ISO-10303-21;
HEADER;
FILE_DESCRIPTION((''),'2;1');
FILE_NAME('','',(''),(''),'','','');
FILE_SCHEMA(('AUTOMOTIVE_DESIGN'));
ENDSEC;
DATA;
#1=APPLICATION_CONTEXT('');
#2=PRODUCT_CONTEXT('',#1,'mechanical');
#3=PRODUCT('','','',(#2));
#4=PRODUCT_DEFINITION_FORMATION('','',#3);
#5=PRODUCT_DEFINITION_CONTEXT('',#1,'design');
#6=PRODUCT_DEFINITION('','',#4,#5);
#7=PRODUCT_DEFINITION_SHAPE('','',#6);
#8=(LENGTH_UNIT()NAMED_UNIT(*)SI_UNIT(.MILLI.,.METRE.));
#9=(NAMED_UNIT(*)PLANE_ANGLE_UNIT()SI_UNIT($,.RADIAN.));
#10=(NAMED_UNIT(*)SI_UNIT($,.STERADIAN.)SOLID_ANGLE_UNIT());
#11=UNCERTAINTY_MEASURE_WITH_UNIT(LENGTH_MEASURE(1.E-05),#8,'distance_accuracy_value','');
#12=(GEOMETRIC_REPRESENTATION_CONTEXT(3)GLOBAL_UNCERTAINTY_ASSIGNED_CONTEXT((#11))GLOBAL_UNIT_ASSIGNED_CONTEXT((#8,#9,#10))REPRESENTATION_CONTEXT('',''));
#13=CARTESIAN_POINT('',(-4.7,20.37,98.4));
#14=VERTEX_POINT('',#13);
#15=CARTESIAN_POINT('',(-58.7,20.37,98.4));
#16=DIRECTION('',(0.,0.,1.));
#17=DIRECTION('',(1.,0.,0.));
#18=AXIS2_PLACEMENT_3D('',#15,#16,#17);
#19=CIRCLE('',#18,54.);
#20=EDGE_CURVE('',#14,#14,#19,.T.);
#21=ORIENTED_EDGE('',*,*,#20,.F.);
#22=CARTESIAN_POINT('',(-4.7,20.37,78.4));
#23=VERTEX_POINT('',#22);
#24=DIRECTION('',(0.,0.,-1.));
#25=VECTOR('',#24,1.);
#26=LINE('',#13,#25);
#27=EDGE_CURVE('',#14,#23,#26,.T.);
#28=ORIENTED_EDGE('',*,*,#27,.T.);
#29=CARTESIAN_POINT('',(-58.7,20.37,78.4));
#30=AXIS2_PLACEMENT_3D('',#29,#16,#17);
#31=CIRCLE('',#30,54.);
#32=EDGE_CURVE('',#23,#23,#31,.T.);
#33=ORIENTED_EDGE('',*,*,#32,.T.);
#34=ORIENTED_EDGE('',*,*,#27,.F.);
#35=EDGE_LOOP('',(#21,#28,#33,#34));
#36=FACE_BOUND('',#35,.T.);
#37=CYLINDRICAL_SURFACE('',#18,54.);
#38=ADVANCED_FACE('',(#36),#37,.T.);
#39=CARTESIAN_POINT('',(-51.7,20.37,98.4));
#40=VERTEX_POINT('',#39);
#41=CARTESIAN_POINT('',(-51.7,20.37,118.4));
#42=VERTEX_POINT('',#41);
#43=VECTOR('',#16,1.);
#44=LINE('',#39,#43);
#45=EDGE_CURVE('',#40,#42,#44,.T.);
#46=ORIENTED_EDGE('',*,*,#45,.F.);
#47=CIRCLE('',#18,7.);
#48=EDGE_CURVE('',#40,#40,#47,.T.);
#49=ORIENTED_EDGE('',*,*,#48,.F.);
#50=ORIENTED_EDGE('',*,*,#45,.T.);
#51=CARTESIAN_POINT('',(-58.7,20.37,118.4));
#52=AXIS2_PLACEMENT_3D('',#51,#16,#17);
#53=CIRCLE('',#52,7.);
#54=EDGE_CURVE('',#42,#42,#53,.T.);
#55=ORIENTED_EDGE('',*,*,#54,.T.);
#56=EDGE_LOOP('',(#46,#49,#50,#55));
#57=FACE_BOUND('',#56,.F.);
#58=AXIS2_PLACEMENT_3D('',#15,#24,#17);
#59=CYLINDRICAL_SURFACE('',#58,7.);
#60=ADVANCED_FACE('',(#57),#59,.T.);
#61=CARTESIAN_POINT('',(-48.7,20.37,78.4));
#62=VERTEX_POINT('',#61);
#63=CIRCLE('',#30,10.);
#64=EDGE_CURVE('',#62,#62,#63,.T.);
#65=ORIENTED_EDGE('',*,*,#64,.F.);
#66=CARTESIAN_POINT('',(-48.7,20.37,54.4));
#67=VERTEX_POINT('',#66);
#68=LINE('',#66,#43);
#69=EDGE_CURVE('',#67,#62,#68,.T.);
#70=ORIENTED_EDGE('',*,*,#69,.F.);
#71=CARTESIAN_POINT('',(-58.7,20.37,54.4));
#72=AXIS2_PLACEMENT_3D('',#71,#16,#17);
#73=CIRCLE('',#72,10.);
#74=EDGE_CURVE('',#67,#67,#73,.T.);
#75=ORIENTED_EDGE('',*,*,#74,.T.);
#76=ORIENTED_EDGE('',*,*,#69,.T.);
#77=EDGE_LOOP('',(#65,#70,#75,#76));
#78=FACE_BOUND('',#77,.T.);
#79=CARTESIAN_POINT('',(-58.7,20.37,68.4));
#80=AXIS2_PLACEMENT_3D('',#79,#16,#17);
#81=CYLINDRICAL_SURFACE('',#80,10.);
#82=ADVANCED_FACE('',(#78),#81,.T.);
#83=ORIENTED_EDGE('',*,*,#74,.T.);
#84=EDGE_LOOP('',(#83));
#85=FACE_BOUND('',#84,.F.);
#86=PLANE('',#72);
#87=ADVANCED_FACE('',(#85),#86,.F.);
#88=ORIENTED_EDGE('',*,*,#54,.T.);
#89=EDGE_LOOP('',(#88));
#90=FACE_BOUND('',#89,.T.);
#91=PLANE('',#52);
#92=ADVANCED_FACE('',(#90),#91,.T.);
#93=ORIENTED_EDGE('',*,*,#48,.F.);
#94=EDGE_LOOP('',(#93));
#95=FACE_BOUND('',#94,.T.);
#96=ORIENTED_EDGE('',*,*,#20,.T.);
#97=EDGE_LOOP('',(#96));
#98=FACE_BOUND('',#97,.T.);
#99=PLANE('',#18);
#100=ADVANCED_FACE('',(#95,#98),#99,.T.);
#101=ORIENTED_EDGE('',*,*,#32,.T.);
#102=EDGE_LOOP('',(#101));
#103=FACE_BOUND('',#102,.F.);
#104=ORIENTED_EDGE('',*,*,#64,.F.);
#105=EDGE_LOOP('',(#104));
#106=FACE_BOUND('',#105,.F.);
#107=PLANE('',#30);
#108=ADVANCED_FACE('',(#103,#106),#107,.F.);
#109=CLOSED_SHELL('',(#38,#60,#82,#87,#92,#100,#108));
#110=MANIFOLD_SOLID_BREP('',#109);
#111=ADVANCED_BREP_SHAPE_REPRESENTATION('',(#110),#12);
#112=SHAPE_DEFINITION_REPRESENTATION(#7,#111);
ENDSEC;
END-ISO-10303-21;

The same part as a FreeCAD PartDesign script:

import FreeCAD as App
import Part
import Sketcher

doc = App.newDocument("Part")
params = doc.addObject("Spreadsheet::Sheet", "Params")
for row, (alias, value) in enumerate([
    ("sketch1_diameter", "108 mm"),
    ("pad1_length", "20 mm"),
    ("sketch2_diameter", "20 mm"),
    ("pad2_length", "30 mm"),
    ("pad2_length2", "14 mm"),
    ("sketch3_diameter", "14 mm"),
    ("pad3_length", "20 mm"),
], start=1):
    params.set(f"A{row}", alias)
    params.set(f"B{row}", "=" + value)
    params.setAlias(f"B{row}", alias)

body = doc.addObject("PartDesign::Body", "Body")

# Sketch on XY plane
sketch1 = doc.addObject("Sketcher::SketchObject", "Sketch")
body.addObject(sketch1)
sketch1.AttachmentSupport = (doc.XY_Plane, [""])
sketch1.MapMode = "FlatFace"
sketch1.AttachmentOffset = App.Placement(App.Vector(0, 0, 98.4), App.Rotation())
sketch1.addGeometry(Part.Circle(App.Vector(-58.7, 20.37, 0), App.Vector(0, 0, 1), 54), False)
sketch1.addConstraint(Sketcher.Constraint("Diameter", 0, 108.0))
sketch1.addConstraint(Sketcher.Constraint("DistanceX", 0, 3, -1, 1, 58.7))
sketch1.addConstraint(Sketcher.Constraint("DistanceY", -1, 1, 0, 3, 20.37))
sketch1.setExpression("Constraints[0]", "Params.sketch1_diameter")
pad1 = doc.addObject("PartDesign::Pad", "Pad")
body.addObject(pad1)
pad1.Profile = sketch1
pad1.setExpression("Length", "Params.pad1_length")
pad1.Reversed = True
body2 = doc.addObject("PartDesign::Body", "Body001")

# Sketch on XY plane
sketch2 = doc.addObject("Sketcher::SketchObject", "Sketch001")
body2.addObject(sketch2)
sketch2.AttachmentSupport = (doc.getObject("XY_Plane001"), [""])
sketch2.MapMode = "FlatFace"
sketch2.AttachmentOffset = App.Placement(App.Vector(0, 0, 68.4), App.Rotation())
sketch2.addGeometry(Part.Circle(App.Vector(-58.7, 20.37, 0), App.Vector(0, 0, 1), 10), False)
sketch2.addConstraint(Sketcher.Constraint("Diameter", 0, 20.0))
sketch2.addConstraint(Sketcher.Constraint("DistanceX", 0, 3, -1, 1, 58.7))
sketch2.addConstraint(Sketcher.Constraint("DistanceY", -1, 1, 0, 3, 20.37))
sketch2.setExpression("Constraints[0]", "Params.sketch2_diameter")
pad2 = doc.addObject("PartDesign::Pad", "Pad001")
body2.addObject(pad2)
pad2.Profile = sketch2
pad2.Type = "TwoLengths"
pad2.setExpression("Length", "Params.pad2_length")
pad2.setExpression("Length2", "Params.pad2_length2")
body3 = doc.addObject("PartDesign::Body", "Body002")

# Sketch on XY plane
sketch3 = doc.addObject("Sketcher::SketchObject", "Sketch002")
body3.addObject(sketch3)
sketch3.AttachmentSupport = (doc.getObject("XY_Plane002"), [""])
sketch3.MapMode = "FlatFace"
sketch3.AttachmentOffset = App.Placement(App.Vector(0, 0, 98.4), App.Rotation())
sketch3.addGeometry(Part.Circle(App.Vector(-58.7, 20.37, 0), App.Vector(0, 0, 1), 7), False)
sketch3.addConstraint(Sketcher.Constraint("Diameter", 0, 14.0))
sketch3.addConstraint(Sketcher.Constraint("DistanceX", 0, 3, -1, 1, 58.7))
sketch3.addConstraint(Sketcher.Constraint("DistanceY", -1, 1, 0, 3, 20.37))
sketch3.setExpression("Constraints[0]", "Params.sketch3_diameter")
pad3 = doc.addObject("PartDesign::Pad", "Pad002")
body3.addObject(pad3)
pad3.Profile = sketch3
pad3.setExpression("Length", "Params.pad3_length")
doc.recompute()

boolean = doc.addObject("PartDesign::Boolean", "Boolean")
body3.addObject(boolean)
boolean.Type = "Fuse"
boolean.addObjects([body])
doc.recompute()

boolean2 = doc.addObject("PartDesign::Boolean", "Boolean001")
body3.addObject(boolean2)
boolean2.Type = "Fuse"
boolean2.addObjects([body2])

doc.recompute()
